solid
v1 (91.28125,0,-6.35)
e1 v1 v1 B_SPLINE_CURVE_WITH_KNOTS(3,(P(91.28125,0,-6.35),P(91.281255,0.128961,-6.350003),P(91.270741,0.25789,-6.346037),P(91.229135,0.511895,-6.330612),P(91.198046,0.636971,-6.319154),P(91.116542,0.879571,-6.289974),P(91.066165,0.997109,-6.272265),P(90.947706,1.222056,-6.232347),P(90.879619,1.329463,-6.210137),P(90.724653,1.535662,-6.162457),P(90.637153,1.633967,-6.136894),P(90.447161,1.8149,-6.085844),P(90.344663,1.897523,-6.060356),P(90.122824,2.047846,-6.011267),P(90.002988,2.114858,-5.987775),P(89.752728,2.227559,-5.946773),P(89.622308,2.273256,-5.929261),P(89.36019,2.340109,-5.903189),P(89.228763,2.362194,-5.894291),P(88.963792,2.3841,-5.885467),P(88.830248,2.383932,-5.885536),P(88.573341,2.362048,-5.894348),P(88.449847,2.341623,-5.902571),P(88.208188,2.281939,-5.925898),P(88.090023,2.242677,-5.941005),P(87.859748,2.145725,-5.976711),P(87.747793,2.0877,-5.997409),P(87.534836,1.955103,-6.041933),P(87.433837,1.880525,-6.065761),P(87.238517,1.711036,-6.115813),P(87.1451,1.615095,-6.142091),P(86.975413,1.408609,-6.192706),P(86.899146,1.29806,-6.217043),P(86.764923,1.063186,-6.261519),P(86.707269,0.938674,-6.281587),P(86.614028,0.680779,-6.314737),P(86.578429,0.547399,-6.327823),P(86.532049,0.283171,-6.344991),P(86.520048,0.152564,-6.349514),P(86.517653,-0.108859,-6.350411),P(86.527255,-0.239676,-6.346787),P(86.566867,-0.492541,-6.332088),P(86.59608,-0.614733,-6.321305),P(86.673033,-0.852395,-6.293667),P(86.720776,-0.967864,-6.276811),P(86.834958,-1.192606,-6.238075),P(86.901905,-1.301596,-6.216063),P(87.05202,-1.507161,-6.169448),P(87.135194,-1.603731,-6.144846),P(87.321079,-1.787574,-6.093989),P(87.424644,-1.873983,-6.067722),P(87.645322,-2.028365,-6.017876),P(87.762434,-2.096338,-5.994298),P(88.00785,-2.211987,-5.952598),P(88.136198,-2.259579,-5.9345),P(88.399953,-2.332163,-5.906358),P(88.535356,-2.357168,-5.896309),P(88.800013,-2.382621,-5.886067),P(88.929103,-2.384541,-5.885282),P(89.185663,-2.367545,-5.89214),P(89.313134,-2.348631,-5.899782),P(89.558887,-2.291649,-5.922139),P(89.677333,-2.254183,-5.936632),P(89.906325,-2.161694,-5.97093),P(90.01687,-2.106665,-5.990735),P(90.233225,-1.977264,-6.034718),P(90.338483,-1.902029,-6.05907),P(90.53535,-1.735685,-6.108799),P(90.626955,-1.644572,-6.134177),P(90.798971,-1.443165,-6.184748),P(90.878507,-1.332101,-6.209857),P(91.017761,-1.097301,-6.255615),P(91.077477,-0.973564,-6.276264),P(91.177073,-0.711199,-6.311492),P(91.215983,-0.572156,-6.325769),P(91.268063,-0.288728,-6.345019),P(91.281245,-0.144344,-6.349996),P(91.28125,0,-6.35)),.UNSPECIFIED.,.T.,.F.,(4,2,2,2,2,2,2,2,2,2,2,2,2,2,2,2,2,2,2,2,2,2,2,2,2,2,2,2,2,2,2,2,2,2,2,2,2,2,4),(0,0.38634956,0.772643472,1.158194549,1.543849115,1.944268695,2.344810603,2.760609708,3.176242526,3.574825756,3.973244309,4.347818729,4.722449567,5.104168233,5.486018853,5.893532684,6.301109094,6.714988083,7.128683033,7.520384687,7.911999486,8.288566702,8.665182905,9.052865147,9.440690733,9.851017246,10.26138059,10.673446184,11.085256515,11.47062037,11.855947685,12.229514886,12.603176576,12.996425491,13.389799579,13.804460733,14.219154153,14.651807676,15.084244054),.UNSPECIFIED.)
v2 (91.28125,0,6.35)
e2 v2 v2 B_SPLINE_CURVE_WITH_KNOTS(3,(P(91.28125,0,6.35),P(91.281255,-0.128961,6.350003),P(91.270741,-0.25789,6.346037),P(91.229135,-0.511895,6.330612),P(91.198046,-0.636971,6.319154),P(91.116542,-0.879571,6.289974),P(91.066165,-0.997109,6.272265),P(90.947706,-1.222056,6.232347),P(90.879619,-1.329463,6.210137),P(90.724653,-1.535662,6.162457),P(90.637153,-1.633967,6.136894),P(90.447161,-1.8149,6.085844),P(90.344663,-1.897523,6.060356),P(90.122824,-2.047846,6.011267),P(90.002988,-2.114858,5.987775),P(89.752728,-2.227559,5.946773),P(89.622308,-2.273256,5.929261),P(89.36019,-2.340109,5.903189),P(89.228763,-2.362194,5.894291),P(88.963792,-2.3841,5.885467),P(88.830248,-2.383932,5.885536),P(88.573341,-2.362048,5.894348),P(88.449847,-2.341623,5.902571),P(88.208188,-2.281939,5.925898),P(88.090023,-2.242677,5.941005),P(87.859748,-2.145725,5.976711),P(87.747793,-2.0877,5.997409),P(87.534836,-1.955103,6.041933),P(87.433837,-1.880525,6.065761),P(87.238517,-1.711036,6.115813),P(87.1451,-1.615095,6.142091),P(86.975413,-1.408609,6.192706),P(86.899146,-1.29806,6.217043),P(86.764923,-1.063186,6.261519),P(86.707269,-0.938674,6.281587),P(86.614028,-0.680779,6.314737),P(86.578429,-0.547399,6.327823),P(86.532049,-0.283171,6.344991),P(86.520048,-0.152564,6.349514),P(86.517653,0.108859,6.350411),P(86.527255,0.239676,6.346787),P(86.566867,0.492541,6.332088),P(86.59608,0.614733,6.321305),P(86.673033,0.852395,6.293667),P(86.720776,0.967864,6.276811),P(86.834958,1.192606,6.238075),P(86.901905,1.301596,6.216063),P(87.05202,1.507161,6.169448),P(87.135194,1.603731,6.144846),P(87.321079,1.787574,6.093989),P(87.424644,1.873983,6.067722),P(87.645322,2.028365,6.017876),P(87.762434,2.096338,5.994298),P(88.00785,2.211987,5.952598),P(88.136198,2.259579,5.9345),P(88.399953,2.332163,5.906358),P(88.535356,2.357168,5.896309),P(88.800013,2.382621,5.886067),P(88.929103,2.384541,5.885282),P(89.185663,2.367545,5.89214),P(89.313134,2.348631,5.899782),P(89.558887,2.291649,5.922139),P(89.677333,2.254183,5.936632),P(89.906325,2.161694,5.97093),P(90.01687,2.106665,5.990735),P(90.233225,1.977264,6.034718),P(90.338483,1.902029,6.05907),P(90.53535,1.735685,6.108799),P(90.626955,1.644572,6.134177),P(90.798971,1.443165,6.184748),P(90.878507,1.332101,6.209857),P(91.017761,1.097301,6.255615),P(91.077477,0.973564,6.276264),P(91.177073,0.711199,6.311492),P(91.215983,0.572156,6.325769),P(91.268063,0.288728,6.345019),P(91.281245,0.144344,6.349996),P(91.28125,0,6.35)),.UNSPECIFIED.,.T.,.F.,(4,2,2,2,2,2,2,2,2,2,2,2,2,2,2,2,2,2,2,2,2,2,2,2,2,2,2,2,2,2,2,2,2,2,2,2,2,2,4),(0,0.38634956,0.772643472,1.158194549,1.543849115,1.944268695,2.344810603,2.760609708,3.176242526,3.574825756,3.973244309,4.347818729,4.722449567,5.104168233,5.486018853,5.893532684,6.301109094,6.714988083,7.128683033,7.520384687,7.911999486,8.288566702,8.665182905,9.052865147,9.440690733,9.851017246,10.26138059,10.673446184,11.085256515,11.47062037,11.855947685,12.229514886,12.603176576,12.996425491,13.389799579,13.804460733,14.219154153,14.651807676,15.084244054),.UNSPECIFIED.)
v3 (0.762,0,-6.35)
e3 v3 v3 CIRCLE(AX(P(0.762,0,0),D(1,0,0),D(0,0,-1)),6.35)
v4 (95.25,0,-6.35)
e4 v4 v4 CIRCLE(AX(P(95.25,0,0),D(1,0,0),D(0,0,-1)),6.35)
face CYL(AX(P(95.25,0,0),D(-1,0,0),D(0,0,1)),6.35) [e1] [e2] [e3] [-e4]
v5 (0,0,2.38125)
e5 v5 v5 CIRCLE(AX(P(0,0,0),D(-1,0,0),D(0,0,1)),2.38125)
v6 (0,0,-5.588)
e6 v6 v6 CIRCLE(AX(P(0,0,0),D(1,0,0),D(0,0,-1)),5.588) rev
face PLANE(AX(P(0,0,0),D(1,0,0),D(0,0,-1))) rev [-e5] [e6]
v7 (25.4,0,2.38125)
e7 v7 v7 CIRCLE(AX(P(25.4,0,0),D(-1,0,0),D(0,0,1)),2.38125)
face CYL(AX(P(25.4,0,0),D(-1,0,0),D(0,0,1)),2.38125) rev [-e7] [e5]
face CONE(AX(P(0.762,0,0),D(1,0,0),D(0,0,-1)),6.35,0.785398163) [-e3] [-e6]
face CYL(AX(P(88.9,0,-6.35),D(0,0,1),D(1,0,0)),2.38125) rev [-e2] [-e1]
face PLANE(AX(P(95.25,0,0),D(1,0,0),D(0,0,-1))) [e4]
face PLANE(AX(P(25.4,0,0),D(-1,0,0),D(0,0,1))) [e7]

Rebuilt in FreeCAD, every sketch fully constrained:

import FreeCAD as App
import Part
import Sketcher
Q = App.Units.Quantity


def edges_at(feature, points):
    """Names of the edges that pass closest to the given points."""
    edges = feature.Shape.Edges
    near = lambda p: min(range(len(edges)), key=lambda i: edges[i].distToShape(Part.Vertex(*p))[0])
    return sorted({f"Edge{near(p) + 1}" for p in points})

doc = App.newDocument("Part")
body = doc.addObject("PartDesign::Body", "Body")

# Sketch on YZ plane
sketch1 = body.newObject("Sketcher::SketchObject", "Sketch")
sketch1.AttachmentSupport = (doc.getObject("YZ_Plane"), [""])
sketch1.MapMode = "FlatFace"
sketch1.addGeometry(Part.Circle(App.Vector(0, 0, 0), App.Vector(0, 0, 1), 6), False)
sketch1.addConstraint(Sketcher.Constraint("Coincident", 0, 3, -1, 1))
sketch1.addConstraint(Sketcher.Constraint("Diameter", 0, Q("0.5 in")))
pad1 = body.newObject("PartDesign::Pad", "Pad")
pad1.Profile = sketch1
pad1.Length = Q("3.75 in")

# Sketch on XY plane
sketch2 = body.newObject("Sketcher::SketchObject", "Sketch001")
sketch2.AttachmentSupport = (doc.getObject("XY_Plane"), [""])
sketch2.MapMode = "FlatFace"
sketch2.addGeometry(Part.Circle(App.Vector(88.9, 0, 0), App.Vector(0, 0, 1), 2.4), False)
sketch2.addConstraint(Sketcher.Constraint("PointOnObject", 0, 3, -1))
sketch2.addConstraint(Sketcher.Constraint("Diameter", 0, Q("0.1875 in")))
sketch2.addConstraint(Sketcher.Constraint("DistanceX", -1, 1, 0, 3, Q("3.5 in")))
pocket1 = body.newObject("PartDesign::Pocket", "Pocket")
pocket1.Profile = sketch2
pocket1.Type = "ThroughAll"
pocket1.Midplane = True

# Sketch on YZ plane
sketch3 = body.newObject("Sketcher::SketchObject", "Sketch002")
sketch3.AttachmentSupport = (doc.getObject("YZ_Plane"), [""])
sketch3.MapMode = "FlatFace"
sketch3.addGeometry(Part.Circle(App.Vector(0, 0, 0), App.Vector(0, 0, 1), 2.4), False)
sketch3.addConstraint(Sketcher.Constraint("Coincident", 0, 3, -1, 1))
sketch3.addConstraint(Sketcher.Constraint("Diameter", 0, Q("0.1875 in")))
pocket2 = body.newObject("PartDesign::Pocket", "Pocket001")
pocket2.Profile = sketch3
pocket2.Length = Q("1 in")
pocket2.Reversed = True
doc.recompute()

chamfer = body.newObject("PartDesign::Chamfer", "Chamfer")
chamfer.Base = (pocket2, edges_at(pocket2, [(0, 0, 6.35)]))
chamfer.Size = Q("0.03 in")

doc.recompute()
